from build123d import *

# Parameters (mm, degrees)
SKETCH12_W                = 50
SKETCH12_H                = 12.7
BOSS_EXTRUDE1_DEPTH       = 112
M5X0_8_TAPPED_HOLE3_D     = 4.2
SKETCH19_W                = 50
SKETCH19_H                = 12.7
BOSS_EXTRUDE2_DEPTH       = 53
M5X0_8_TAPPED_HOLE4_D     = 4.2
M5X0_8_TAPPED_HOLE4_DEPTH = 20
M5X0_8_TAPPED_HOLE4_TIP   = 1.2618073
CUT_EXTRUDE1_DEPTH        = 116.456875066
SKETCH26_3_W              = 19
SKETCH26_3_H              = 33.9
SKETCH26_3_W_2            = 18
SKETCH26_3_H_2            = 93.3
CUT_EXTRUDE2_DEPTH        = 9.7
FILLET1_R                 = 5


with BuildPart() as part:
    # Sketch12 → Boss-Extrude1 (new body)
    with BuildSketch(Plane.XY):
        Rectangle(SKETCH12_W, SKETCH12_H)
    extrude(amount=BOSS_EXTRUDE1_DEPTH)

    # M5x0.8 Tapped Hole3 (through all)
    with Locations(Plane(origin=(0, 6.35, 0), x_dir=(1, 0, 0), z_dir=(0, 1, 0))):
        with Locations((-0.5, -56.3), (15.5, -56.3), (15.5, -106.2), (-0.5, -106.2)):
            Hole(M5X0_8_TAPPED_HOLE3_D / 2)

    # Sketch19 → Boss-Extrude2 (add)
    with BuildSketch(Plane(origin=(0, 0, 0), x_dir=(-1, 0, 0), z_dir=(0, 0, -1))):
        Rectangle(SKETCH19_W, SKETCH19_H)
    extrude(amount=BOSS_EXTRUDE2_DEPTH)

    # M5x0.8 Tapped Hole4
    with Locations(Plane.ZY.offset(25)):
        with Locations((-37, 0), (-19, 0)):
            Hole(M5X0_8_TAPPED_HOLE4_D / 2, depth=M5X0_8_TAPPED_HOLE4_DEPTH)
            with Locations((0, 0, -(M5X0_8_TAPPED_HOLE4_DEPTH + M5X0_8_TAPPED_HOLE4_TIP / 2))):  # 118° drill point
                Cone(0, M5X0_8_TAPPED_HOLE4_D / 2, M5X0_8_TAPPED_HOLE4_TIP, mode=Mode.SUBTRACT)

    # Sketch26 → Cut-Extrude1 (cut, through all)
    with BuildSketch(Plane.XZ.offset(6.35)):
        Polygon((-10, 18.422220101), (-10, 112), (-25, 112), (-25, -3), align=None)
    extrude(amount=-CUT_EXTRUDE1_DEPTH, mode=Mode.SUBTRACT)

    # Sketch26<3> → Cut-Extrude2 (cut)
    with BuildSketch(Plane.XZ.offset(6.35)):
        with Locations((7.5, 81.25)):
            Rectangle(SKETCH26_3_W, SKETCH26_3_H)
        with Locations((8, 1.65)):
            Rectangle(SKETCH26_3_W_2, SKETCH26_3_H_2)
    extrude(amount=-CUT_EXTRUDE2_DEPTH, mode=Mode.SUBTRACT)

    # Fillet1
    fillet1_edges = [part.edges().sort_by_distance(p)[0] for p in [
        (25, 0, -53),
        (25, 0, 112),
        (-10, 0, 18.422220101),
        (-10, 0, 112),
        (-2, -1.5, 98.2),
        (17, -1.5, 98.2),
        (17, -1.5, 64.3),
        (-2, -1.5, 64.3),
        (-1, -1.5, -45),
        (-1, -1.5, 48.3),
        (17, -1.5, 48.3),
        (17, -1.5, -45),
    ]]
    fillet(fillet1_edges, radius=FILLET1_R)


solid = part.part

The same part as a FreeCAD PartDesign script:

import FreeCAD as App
import Part
import Sketcher

V = App.Vector
Q = App.Units.Quantity


def edges_at(feature, points):
    """Names of the edges that pass closest to the given points."""
    edges = feature.Shape.Edges
    near = lambda p: min(range(len(edges)), key=lambda i: edges[i].distToShape(Part.Vertex(*p))[0])
    return sorted({f"Edge{near(p) + 1}" for p in points})

doc = App.newDocument("Part")
body = doc.addObject("PartDesign::Body", "Body")

# Sketch on XY plane
sketch1 = doc.addObject("Sketcher::SketchObject", "Sketch")
body.addObject(sketch1)
sketch1.AttachmentSupport = (doc.XY_Plane, [""])
sketch1.MapMode = "FlatFace"
sketch1.addGeometry(Part.LineSegment(V(-25, 6, 0), V(-25, -6, 0)), False)
sketch1.addGeometry(Part.LineSegment(V(-25, -6, 0), V(25, -6, 0)), False)
sketch1.addGeometry(Part.LineSegment(V(25, -6, 0), V(25, 6, 0)), False)
sketch1.addGeometry(Part.LineSegment(V(25, 6, 0), V(-25, 6, 0)), False)
sketch1.addConstraint(Sketcher.Constraint("Coincident", 0, 2, 1, 1))
sketch1.addConstraint(Sketcher.Constraint("Coincident", 1, 2, 2, 1))
sketch1.addConstraint(Sketcher.Constraint("Coincident", 2, 2, 3, 1))
sketch1.addConstraint(Sketcher.Constraint("Coincident", 3, 2, 0, 1))
sketch1.addConstraint(Sketcher.Constraint("Vertical", 0))
sketch1.addConstraint(Sketcher.Constraint("Horizontal", 1))
sketch1.addConstraint(Sketcher.Constraint("Vertical", 2))
sketch1.addConstraint(Sketcher.Constraint("Horizontal", 3))
sketch1.addConstraint(Sketcher.Constraint("Symmetric", 0, 2, 2, 2, -1, 1))
sketch1.addConstraint(Sketcher.Constraint("DistanceX", 1, 1, 1, 2, Q("50 mm")))
sketch1.addConstraint(Sketcher.Constraint("DistanceY", 0, 2, 0, 1, Q("12.7 mm")))
pad1 = doc.addObject("PartDesign::Pad", "Pad")
body.addObject(pad1)
pad1.Profile = sketch1
pad1.Length = 112

# Sketch on XZ plane
sketch2 = doc.addObject("Sketcher::SketchObject", "Sketch001")
body.addObject(sketch2)
sketch2.AttachmentSupport = (doc.XZ_Plane, [""])
sketch2.MapMode = "FlatFace"
sketch2.AttachmentOffset = App.Placement(V(0, 0, -6.35), App.Rotation())
sketch2.addGeometry(Part.Circle(V(-0.5, 56.3, 0), V(0, 0, 1), 2.1), False)
sketch2.addGeometry(Part.Circle(V(15.5, 56.3, 0), V(0, 0, 1), 2.1), False)
sketch2.addGeometry(Part.Circle(V(15.5, 106.2, 0), V(0, 0, 1), 2.1), False)
sketch2.addGeometry(Part.Circle(V(-0.5, 106.2, 0), V(0, 0, 1), 2.1), False)
sketch2.addConstraint(Sketcher.Constraint("Equal", 0, 1))
sketch2.addConstraint(Sketcher.Constraint("Equal", 1, 2))
sketch2.addConstraint(Sketcher.Constraint("Equal", 2, 3))
sketch2.addConstraint(Sketcher.Constraint("Horizontal", 0, 3, 1, 3))
sketch2.addConstraint(Sketcher.Constraint("Horizontal", 2, 3, 3, 3))
sketch2.addConstraint(Sketcher.Constraint("Vertical", 1, 3, 2, 3))
sketch2.addConstraint(Sketcher.Constraint("Vertical", 0, 3, 3, 3))
sketch2.addConstraint(Sketcher.Constraint("Diameter", 0, Q("4.2 mm")))
sketch2.addConstraint(Sketcher.Constraint("DistanceX", 0, 3, 1, 3, Q("16 mm")))
sketch2.addConstraint(Sketcher.Constraint("DistanceX", 0, 3, -1, 1, Q("0.5 mm")))
sketch2.addConstraint(Sketcher.Constraint("DistanceY", -1, 1, 0, 3, Q("56.3 mm")))
sketch2.addConstraint(Sketcher.Constraint("DistanceY", -1, 1, 2, 3, Q("106.2 mm")))
doc.recompute()
hole = doc.addObject("PartDesign::Hole", "Hole")
body.addObject(hole)
hole.Profile = sketch2
hole.ThreadType = "None"
hole.Diameter = 4.2
hole.DepthType = "ThroughAll"
hole.Reversed = True

# Sketch on XY plane
sketch3 = doc.addObject("Sketcher::SketchObject", "Sketch002")
body.addObject(sketch3)
sketch3.AttachmentSupport = (doc.XY_Plane, [""])
sketch3.MapMode = "FlatFace"
sketch3.addGeometry(Part.LineSegment(V(25, 6, 0), V(25, -6, 0)), False)
sketch3.addGeometry(Part.LineSegment(V(25, -6, 0), V(-25, -6, 0)), False)
sketch3.addGeometry(Part.LineSegment(V(-25, -6, 0), V(-25, 6, 0)), False)
sketch3.addGeometry(Part.LineSegment(V(-25, 6, 0), V(25, 6, 0)), False)
sketch3.addConstraint(Sketcher.Constraint("Coincident", 0, 2, 1, 1))
sketch3.addConstraint(Sketcher.Constraint("Coincident", 1, 2, 2, 1))
sketch3.addConstraint(Sketcher.Constraint("Coincident", 2, 2, 3, 1))
sketch3.addConstraint(Sketcher.Constraint("Coincident", 3, 2, 0, 1))
sketch3.addConstraint(Sketcher.Constraint("Vertical", 0))
sketch3.addConstraint(Sketcher.Constraint("Horizontal", 1))
sketch3.addConstraint(Sketcher.Constraint("Vertical", 2))
sketch3.addConstraint(Sketcher.Constraint("Horizontal", 3))
sketch3.addConstraint(Sketcher.Constraint("Symmetric", 0, 2, 2, 2, -1, 1))
sketch3.addConstraint(Sketcher.Constraint("DistanceX", 1, 2, 1, 1, Q("50 mm")))
sketch3.addConstraint(Sketcher.Constraint("DistanceY", 0, 2, 0, 1, Q("12.7 mm")))
pad2 = doc.addObject("PartDesign::Pad", "Pad001")
body.addObject(pad2)
pad2.Profile = sketch3
pad2.Length = 53
pad2.Reversed = True

# Sketch on YZ plane
sketch4 = doc.addObject("Sketcher::SketchObject", "Sketch003")
body.addObject(sketch4)
sketch4.AttachmentSupport = (doc.YZ_Plane, [""])
sketch4.MapMode = "FlatFace"
sketch4.AttachmentOffset = App.Placement(V(0, 0, -25), App.Rotation())
sketch4.addGeometry(Part.Circle(V(0, -37, 0), V(0, 0, 1), 2.1), False)
sketch4.addGeometry(Part.Circle(V(0, -19, 0), V(0, 0, 1), 2.1), False)
sketch4.addConstraint(Sketcher.Constraint("Equal", 0, 1))
sketch4.addConstraint(Sketcher.Constraint("PointOnObject", 0, 3, -2))
sketch4.addConstraint(Sketcher.Constraint("PointOnObject", 1, 3, -2))
sketch4.addConstraint(Sketcher.Constraint("Diameter", 0, Q("4.2 mm")))
sketch4.addConstraint(Sketcher.Constraint("DistanceY", 0, 3, -1, 1, Q("37 mm")))
sketch4.addConstraint(Sketcher.Constraint("DistanceY", 1, 3, -1, 1, Q("19 mm")))
doc.recompute()
hole2 = doc.addObject("PartDesign::Hole", "Hole001")
body.addObject(hole2)
hole2.Profile = sketch4
hole2.ThreadType = "None"
hole2.Diameter = 4.2
hole2.DepthType = "Dimension"
hole2.Depth = 20
hole2.DrillPoint = "Angled"
hole2.DrillPointAngle = 118
hole2.Reversed = True

# Sketch on XZ plane
sketch5 = doc.addObject("Sketcher::SketchObject", "Sketch004")
body.addObject(sketch5)
sketch5.AttachmentSupport = (doc.XZ_Plane, [""])
sketch5.MapMode = "FlatFace"
sketch5.AttachmentOffset = App.Placement(V(0, 0, 6.35), App.Rotation())
sketch5.addGeometry(Part.LineSegment(V(-10, 18, 0), V(-10, 112, 0)), False)
sketch5.addGeometry(Part.LineSegment(V(-10, 112, 0), V(-25, 112, 0)), False)
sketch5.addGeometry(Part.LineSegment(V(-25, 112, 0), V(-25, -3, 0)), False)
sketch5.addGeometry(Part.LineSegment(V(-25, -3, 0), V(-10, 18, 0)), False)
sketch5.addConstraint(Sketcher.Constraint("Coincident", 0, 2, 1, 1))
sketch5.addConstraint(Sketcher.Constraint("Coincident", 1, 2, 2, 1))
sketch5.addConstraint(Sketcher.Constraint("Coincident", 2, 2, 3, 1))
sketch5.addConstraint(Sketcher.Constraint("Coincident", 3, 2, 0, 1))
sketch5.addConstraint(Sketcher.Constraint("Vertical", 0))
sketch5.addConstraint(Sketcher.Constraint("Horizontal", 1))
sketch5.addConstraint(Sketcher.Constraint("Vertical", 2))
sketch5.addConstraint(Sketcher.Constraint("DistanceX", 1, 2, 1, 1, Q("15 mm")))
sketch5.addConstraint(Sketcher.Constraint("DistanceY", 2, 2, 2, 1, Q("115 mm")))
sketch5.addConstraint(Sketcher.Constraint("Angle", 3, Q("55 deg")))
sketch5.addConstraint(Sketcher.Constraint("DistanceX", 0, 2, -1, 1, Q("10 mm")))
sketch5.addConstraint(Sketcher.Constraint("DistanceY", -1, 1, 0, 2, Q("112 mm")))
pocket1 = doc.addObject("PartDesign::Pocket", "Pocket")
body.addObject(pocket1)
pocket1.Profile = sketch5
pocket1.Type = "ThroughAll"

# Sketch on XZ plane
sketch6 = doc.addObject("Sketcher::SketchObject", "Sketch005")
body.addObject(sketch6)
sketch6.AttachmentSupport = (doc.XZ_Plane, [""])
sketch6.MapMode = "FlatFace"
sketch6.AttachmentOffset = App.Placement(V(0, 0, 6.35), App.Rotation())
sketch6.addGeometry(Part.LineSegment(V(-2, 98, 0), V(-2, 64, 0)), False)
sketch6.addGeometry(Part.LineSegment(V(-2, 64, 0), V(17, 64, 0)), False)
sketch6.addGeometry(Part.LineSegment(V(17, 64, 0), V(17, 98, 0)), False)
sketch6.addGeometry(Part.LineSegment(V(17, 98, 0), V(-2, 98, 0)), False)
sketch6.addGeometry(Part.LineSegment(V(-1, 48, 0), V(-1, -45, 0)), False)
sketch6.addGeometry(Part.LineSegment(V(-1, -45, 0), V(17, -45, 0)), False)
sketch6.addGeometry(Part.LineSegment(V(17, -45, 0), V(17, 48, 0)), False)
sketch6.addGeometry(Part.LineSegment(V(17, 48, 0), V(-1, 48, 0)), False)
sketch6.addConstraint(Sketcher.Constraint("Coincident", 0, 2, 1, 1))
sketch6.addConstraint(Sketcher.Constraint("Coincident", 1, 2, 2, 1))
sketch6.addConstraint(Sketcher.Constraint("Coincident", 2, 2, 3, 1))
sketch6.addConstraint(Sketcher.Constraint("Coincident", 3, 2, 0, 1))
sketch6.addConstraint(Sketcher.Constraint("Coincident", 4, 2, 5, 1))
sketch6.addConstraint(Sketcher.Constraint("Coincident", 5, 2, 6, 1))
sketch6.addConstraint(Sketcher.Constraint("Coincident", 6, 2, 7, 1))
sketch6.addConstraint(Sketcher.Constraint("Coincident", 7, 2, 4, 1))
sketch6.addConstraint(Sketcher.Constraint("Vertical", 0))
sketch6.addConstraint(Sketcher.Constraint("Horizontal", 1))
sketch6.addConstraint(Sketcher.Constraint("Vertical", 2))
sketch6.addConstraint(Sketcher.Constraint("Horizontal", 3))
sketch6.addConstraint(Sketcher.Constraint("Vertical", 4))
sketch6.addConstraint(Sketcher.Constraint("Horizontal", 5))
sketch6.addConstraint(Sketcher.Constraint("Vertical", 6))
sketch6.addConstraint(Sketcher.Constraint("Horizontal", 7))
sketch6.addConstraint(Sketcher.Constraint("Vertical", 2, 2, 5, 2))
sketch6.addConstraint(Sketcher.Constraint("DistanceX", 1, 1, 1, 2, Q("19 mm")))
sketch6.addConstraint(Sketcher.Constraint("DistanceX", 5, 1, 5, 2, Q("18 mm")))
sketch6.addConstraint(Sketcher.Constraint("DistanceY", 0, 2, 0, 1, Q("33.9 mm")))
sketch6.addConstraint(Sketcher.Constraint("DistanceY", 4, 2, 4, 1, Q("93.3 mm")))
sketch6.addConstraint(Sketcher.Constraint("DistanceX", 0, 2, -1, 1, Q("2 mm")))
sketch6.addConstraint(Sketcher.Constraint("DistanceY", 4, 2, -1, 1, Q("45 mm")))
sketch6.addConstraint(Sketcher.Constraint("DistanceY", 6, 2, 1, 2, Q("16 mm")))
pocket2 = doc.addObject("PartDesign::Pocket", "Pocket001")
body.addObject(pocket2)
pocket2.Profile = sketch6
pocket2.Length = 9.7
doc.recompute()

fillet = doc.addObject("PartDesign::Fillet", "Fillet")
body.addObject(fillet)
fillet.Base = (pocket2, edges_at(pocket2, [
    (25, 0, -53),
    (25, 0, 112),
    (-10, 0, 18.422),
    (-10, 0, 112),
    (-2, -1.5, 98.2),
    (17, -1.5, 98.2),
    (17, -1.5, 64.3),
    (-2, -1.5, 64.3),
    (-1, -1.5, -45),
    (-1, -1.5, 48.3),
    (17, -1.5, 48.3),
    (17, -1.5, -45),
]))
fillet.Radius = 5

doc.recompute()
